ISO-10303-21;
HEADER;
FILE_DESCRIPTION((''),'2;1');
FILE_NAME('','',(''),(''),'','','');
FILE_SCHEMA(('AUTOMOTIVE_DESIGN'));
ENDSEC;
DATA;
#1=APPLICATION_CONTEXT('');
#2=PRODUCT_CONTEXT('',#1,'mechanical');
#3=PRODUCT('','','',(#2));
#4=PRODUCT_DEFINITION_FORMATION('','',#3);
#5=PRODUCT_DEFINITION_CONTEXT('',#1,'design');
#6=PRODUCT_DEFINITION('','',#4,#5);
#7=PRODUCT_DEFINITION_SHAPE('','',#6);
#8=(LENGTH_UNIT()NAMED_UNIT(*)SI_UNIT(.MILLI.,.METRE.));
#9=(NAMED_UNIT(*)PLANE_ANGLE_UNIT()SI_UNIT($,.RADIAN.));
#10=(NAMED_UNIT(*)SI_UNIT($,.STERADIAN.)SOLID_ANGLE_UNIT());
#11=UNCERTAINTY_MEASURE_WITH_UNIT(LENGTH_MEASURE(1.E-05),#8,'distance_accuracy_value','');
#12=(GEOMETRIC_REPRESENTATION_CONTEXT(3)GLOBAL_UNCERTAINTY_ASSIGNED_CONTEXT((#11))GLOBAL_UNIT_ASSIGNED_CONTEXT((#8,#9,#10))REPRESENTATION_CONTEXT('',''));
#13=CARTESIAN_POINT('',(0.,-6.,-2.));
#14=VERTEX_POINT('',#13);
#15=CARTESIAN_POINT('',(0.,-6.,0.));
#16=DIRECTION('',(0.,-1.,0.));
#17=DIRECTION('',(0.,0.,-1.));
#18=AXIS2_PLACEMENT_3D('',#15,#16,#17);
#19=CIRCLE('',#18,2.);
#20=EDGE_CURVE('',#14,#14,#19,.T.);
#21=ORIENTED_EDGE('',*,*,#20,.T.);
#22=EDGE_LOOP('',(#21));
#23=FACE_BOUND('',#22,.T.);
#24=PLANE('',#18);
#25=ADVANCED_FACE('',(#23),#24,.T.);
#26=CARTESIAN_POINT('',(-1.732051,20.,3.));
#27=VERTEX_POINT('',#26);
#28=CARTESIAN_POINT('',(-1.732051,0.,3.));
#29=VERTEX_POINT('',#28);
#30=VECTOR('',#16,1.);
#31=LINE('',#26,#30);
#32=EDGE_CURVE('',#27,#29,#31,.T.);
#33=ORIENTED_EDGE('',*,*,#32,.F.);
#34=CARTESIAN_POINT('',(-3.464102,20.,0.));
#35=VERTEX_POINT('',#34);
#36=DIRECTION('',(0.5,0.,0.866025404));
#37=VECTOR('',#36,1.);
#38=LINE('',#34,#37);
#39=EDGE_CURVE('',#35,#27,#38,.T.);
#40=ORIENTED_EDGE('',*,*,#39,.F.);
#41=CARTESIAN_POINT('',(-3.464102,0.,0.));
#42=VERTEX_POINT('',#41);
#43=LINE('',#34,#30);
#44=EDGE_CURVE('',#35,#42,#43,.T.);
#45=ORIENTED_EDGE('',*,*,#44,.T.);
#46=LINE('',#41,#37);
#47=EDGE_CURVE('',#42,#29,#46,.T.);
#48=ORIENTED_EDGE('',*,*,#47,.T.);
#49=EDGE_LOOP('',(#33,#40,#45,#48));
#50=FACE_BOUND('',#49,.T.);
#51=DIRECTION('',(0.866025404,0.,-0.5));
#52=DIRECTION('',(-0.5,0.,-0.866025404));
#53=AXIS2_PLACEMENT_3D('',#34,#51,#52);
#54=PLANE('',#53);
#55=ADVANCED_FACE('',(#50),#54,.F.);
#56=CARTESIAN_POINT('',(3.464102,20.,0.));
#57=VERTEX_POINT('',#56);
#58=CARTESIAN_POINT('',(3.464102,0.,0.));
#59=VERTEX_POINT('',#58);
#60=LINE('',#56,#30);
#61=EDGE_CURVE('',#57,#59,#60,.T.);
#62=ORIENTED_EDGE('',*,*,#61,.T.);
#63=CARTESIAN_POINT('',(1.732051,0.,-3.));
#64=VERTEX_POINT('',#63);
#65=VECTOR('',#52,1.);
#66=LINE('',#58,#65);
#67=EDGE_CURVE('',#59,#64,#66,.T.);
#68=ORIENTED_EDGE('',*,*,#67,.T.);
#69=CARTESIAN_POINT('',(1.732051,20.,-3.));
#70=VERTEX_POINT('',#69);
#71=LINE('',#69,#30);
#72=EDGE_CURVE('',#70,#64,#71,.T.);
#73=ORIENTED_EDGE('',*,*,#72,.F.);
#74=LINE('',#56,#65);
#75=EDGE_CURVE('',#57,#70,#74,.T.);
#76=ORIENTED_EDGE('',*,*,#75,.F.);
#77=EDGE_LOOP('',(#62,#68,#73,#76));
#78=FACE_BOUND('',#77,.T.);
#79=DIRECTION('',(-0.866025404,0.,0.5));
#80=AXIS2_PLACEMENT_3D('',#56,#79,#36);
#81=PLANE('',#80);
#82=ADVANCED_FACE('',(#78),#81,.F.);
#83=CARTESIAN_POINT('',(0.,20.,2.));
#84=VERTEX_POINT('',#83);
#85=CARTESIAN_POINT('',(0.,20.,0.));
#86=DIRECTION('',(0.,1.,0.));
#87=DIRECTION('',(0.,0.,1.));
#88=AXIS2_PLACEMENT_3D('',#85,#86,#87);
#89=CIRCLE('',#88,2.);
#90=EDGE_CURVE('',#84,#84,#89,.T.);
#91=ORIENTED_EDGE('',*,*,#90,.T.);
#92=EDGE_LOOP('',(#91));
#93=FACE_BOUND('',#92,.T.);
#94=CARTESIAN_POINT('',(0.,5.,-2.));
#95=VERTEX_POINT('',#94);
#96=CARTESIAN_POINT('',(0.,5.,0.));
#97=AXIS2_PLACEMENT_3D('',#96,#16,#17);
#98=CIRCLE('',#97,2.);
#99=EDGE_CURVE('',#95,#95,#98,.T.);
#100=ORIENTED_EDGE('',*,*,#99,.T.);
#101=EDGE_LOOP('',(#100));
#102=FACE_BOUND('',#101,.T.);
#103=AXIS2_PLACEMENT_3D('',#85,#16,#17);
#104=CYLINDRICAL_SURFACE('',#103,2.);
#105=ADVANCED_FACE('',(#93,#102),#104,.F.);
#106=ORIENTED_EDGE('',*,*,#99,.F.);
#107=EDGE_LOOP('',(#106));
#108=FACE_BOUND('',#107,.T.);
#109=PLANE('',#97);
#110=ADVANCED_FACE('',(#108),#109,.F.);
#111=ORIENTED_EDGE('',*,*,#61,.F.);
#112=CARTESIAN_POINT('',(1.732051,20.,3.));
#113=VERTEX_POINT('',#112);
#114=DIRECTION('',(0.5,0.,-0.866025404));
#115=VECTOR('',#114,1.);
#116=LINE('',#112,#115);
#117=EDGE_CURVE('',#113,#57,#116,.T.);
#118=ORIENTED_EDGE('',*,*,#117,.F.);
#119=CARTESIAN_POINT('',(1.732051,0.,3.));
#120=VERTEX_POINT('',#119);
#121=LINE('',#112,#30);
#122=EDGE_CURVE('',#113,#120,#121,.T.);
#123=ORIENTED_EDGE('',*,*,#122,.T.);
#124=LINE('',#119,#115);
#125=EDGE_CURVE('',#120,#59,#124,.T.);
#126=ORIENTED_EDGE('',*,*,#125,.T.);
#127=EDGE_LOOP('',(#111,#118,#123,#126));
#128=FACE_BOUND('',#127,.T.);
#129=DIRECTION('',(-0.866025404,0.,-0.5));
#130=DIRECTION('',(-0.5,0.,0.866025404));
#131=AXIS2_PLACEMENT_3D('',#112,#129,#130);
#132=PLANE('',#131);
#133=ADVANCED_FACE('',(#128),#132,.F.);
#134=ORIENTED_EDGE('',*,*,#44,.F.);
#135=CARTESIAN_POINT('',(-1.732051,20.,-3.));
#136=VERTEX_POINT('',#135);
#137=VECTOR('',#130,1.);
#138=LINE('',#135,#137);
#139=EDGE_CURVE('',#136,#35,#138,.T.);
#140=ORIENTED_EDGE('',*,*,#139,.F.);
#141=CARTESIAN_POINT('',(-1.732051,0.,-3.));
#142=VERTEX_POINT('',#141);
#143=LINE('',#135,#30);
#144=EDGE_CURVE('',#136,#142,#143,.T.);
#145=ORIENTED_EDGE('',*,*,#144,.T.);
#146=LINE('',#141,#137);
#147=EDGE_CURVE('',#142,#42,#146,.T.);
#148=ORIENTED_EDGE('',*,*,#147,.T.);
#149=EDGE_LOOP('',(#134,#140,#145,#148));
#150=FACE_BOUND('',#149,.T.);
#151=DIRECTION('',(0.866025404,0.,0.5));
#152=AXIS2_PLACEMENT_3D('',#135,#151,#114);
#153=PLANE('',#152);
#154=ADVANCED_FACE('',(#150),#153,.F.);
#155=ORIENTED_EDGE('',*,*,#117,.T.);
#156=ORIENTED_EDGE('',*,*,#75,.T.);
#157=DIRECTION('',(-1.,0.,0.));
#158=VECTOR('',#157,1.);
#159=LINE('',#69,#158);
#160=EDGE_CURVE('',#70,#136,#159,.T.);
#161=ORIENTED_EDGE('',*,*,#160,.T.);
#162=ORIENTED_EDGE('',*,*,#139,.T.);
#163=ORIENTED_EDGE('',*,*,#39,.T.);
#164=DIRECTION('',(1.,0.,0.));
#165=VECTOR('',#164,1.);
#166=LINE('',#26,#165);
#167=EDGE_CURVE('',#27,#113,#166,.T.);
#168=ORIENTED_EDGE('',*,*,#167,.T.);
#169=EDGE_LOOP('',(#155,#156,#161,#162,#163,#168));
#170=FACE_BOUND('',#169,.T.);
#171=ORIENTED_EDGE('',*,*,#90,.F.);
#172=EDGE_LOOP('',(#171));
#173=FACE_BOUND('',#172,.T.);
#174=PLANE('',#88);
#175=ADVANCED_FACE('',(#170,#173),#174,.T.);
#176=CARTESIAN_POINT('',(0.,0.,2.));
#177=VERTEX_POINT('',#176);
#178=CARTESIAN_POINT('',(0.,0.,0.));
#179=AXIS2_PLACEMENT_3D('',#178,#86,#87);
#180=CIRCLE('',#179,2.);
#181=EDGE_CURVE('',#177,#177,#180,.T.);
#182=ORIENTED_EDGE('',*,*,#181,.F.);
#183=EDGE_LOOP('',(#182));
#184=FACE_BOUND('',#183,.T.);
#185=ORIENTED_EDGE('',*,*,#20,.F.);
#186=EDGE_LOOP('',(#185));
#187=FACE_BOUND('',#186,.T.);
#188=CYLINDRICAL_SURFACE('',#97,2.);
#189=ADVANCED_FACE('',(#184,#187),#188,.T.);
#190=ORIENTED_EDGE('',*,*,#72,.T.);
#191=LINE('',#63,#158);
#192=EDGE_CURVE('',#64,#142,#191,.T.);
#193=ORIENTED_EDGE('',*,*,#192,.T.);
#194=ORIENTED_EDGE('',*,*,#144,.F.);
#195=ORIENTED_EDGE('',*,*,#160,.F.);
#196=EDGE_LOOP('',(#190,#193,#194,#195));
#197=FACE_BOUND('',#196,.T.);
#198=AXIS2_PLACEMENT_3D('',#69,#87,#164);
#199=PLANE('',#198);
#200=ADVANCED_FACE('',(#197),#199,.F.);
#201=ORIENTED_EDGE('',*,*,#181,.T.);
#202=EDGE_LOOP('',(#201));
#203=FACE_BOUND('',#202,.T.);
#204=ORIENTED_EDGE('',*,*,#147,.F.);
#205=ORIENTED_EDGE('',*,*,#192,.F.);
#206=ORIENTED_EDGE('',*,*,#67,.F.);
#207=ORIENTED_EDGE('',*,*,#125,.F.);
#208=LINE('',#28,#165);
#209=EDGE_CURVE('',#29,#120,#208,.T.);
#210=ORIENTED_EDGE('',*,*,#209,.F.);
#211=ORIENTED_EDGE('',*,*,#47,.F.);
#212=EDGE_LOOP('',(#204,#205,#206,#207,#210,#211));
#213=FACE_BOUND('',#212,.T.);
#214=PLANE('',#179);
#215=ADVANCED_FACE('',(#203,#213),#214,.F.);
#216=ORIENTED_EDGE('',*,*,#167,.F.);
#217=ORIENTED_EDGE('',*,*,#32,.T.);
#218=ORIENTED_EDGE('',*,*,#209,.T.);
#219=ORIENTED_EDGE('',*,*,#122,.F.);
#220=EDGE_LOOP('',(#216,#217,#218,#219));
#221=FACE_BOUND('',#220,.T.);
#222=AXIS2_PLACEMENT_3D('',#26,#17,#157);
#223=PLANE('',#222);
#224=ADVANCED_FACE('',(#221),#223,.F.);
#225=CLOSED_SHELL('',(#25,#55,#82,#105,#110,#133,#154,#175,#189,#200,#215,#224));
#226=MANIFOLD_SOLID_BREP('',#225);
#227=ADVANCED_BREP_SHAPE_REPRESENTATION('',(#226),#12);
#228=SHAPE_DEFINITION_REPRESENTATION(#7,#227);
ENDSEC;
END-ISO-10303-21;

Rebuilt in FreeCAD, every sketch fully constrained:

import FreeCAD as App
import Part
import Sketcher

V = App.Vector
Q = App.Units.Quantity

doc = App.newDocument("Part")
params = doc.addObject("Spreadsheet::Sheet", "Params")
for row, (alias, value) in enumerate([
    ("sketch1_diameter", "4 mm"),
    ("pad1_length", "20 mm"),
    ("sketch2_diameter", "4 mm"),
    ("pad2_length", "6 mm"),
    ("pad2_length2", "5 mm"),
], start=1):
    params.set(f"A{row}", alias)
    params.set(f"B{row}", "=" + value)
    params.setAlias(f"B{row}", alias)

body = doc.addObject("PartDesign::Body", "Body")

sketch1 = body.newObject("Sketcher::SketchObject", "Sketch")
sketch1.AttachmentSupport = (doc.getObject("XZ_Plane"), [""])
sketch1.MapMode = "FlatFace"
sketch1.addGeometry([
    Part.LineSegment(V(3.5, 0, 0), V(1.7, -3, 0)),
    Part.LineSegment(V(1.7, -3, 0), V(-1.7, -3, 0)),
    Part.LineSegment(V(-1.7, -3, 0), V(-3.5, 0, 0)),
    Part.LineSegment(V(-3.5, 0, 0), V(-1.7, 3, 0)),
    Part.LineSegment(V(-1.7, 3, 0), V(1.7, 3, 0)),
    Part.LineSegment(V(1.7, 3, 0), V(3.5, 0, 0)),
    Part.Circle(V(0, 0, 0), V(0, 0, 1), 2),
], False)
sketch1.addConstraint([
    Sketcher.Constraint("Coincident", 0, 2, 1, 1),
    Sketcher.Constraint("Coincident", 1, 2, 2, 1),
    Sketcher.Constraint("Coincident", 2, 2, 3, 1),
    Sketcher.Constraint("Coincident", 3, 2, 4, 1),
    Sketcher.Constraint("Coincident", 4, 2, 5, 1),
    Sketcher.Constraint("Coincident", 5, 2, 0, 1),
    Sketcher.Constraint("Horizontal", 1),
    Sketcher.Constraint("Horizontal", 4),
    Sketcher.Constraint("Coincident", 6, 3, -1, 1),
    Sketcher.Constraint("Symmetric", 0, 2, 3, 2, -1, 1),
    Sketcher.Constraint("Symmetric", 2, 2, 5, 2, -1, 1),
    Sketcher.Constraint("PointOnObject", 2, 2, -1),
    Sketcher.Constraint("Parallel", 2, 5),
    Sketcher.Constraint("Vertical", 1, 2, 3, 2),
    Sketcher.Constraint("Diameter", 6, 4.0),
    Sketcher.Constraint("Angle", 0, Q("-120 deg")),
    Sketcher.Constraint("DistanceY", 0, 2, -1, 1, 3.0),
    Sketcher.Constraint("DistanceX", 1, 2, 1, 1, 3.464102),
])
sketch1.setExpression("Constraints[14]", "Params.sketch1_diameter")
pad1 = body.newObject("PartDesign::Pad", "Pad")
pad1.Profile = sketch1
pad1.setExpression("Length", "Params.pad1_length")
pad1.Reversed = True

sketch2 = body.newObject("Sketcher::SketchObject", "Sketch001")
sketch2.AttachmentSupport = (doc.getObject("XZ_Plane"), [""])
sketch2.MapMode = "FlatFace"
sketch2.addGeometry(Part.Circle(V(0, 0, 0), V(0, 0, 1), 2), False)
sketch2.addConstraint([
    Sketcher.Constraint("Coincident", 0, 3, -1, 1),
    Sketcher.Constraint("Diameter", 0, 4.0),
])
sketch2.setExpression("Constraints[1]", "Params.sketch2_diameter")
pad2 = body.newObject("PartDesign::Pad", "Pad001")
pad2.Profile = sketch2
pad2.Type = "TwoLengths"
pad2.setExpression("Length", "Params.pad2_length")
pad2.setExpression("Length2", "Params.pad2_length2")

doc.recompute()
